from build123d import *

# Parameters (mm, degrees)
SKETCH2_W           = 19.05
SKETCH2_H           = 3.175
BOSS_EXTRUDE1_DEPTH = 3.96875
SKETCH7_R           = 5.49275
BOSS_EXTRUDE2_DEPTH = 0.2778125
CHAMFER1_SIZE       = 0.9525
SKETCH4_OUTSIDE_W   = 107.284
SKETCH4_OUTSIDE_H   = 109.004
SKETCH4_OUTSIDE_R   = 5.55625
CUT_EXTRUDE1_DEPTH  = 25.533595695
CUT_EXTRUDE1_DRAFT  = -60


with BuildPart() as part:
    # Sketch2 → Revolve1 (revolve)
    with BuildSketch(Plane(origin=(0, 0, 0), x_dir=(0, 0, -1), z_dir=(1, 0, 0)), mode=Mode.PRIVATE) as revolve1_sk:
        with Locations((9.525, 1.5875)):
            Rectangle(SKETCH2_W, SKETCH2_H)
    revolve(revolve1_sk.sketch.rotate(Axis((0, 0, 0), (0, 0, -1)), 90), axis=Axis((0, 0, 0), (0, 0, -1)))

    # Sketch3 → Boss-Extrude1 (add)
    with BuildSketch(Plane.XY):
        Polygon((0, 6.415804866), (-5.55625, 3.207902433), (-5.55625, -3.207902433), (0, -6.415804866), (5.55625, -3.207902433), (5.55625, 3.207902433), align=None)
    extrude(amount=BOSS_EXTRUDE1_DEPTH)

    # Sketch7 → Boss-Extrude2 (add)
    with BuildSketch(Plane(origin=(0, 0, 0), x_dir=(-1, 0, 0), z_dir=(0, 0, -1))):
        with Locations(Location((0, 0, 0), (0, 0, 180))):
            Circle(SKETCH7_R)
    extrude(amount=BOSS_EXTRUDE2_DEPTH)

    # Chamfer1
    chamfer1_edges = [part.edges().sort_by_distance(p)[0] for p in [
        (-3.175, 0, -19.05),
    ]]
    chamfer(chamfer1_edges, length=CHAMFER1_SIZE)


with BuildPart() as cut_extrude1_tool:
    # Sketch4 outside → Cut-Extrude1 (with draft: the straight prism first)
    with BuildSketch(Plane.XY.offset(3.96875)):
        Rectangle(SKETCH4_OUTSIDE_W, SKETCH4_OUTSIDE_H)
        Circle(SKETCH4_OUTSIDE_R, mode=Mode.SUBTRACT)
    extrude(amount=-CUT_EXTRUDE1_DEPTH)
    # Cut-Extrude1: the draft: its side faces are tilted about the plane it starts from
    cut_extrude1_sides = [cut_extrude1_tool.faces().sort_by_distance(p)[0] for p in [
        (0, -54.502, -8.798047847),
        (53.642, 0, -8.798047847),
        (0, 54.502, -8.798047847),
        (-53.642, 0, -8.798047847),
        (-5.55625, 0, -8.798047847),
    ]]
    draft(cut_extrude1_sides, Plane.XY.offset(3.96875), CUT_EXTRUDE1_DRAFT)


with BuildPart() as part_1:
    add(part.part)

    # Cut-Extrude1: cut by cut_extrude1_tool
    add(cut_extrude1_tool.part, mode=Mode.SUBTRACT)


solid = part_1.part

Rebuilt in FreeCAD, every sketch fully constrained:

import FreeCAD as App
import Part
import Sketcher
Q = App.Units.Quantity


def edges_at(feature, points):
    """Names of the edges that pass closest to the given points."""
    edges = feature.Shape.Edges
    near = lambda p: min(range(len(edges)), key=lambda i: edges[i].distToShape(Part.Vertex(*p))[0])
    return sorted({f"Edge{near(p) + 1}" for p in points})


def faces_at(feature, points):
    """Names of the faces that lie closest to the given points."""
    faces = feature.Shape.Faces
    near = lambda p: min(range(len(faces)), key=lambda i: faces[i].distToShape(Part.Vertex(*p))[0])
    return sorted({f"Face{near(p) + 1}" for p in points})

doc = App.newDocument("Part")
body = doc.addObject("PartDesign::Body", "Body")

# Sketch on YZ plane
sketch1 = body.newObject("Sketcher::SketchObject", "Sketch")
sketch1.AttachmentSupport = (doc.getObject("YZ_Plane"), [""])
sketch1.MapMode = "FlatFace"
sketch1.addGeometry(Part.LineSegment(App.Vector(3.2, 0, 0), App.Vector(0, 0, 0)), False)
sketch1.addGeometry(Part.LineSegment(App.Vector(0, 0, 0), App.Vector(0, -19.1, 0)), False)
sketch1.addGeometry(Part.LineSegment(App.Vector(0, -19.1, 0), App.Vector(3.2, -19.1, 0)), False)
sketch1.addGeometry(Part.LineSegment(App.Vector(3.2, -19.1, 0), App.Vector(3.2, 0, 0)), False)
sketch1.addConstraint(Sketcher.Constraint("Coincident", 0, 2, 1, 1))
sketch1.addConstraint(Sketcher.Constraint("Coincident", 1, 2, 2, 1))
sketch1.addConstraint(Sketcher.Constraint("Coincident", 2, 2, 3, 1))
sketch1.addConstraint(Sketcher.Constraint("Coincident", 3, 2, 0, 1))
sketch1.addConstraint(Sketcher.Constraint("Horizontal", 0))
sketch1.addConstraint(Sketcher.Constraint("Vertical", 1))
sketch1.addConstraint(Sketcher.Constraint("Horizontal", 2))
sketch1.addConstraint(Sketcher.Constraint("Vertical", 3))
sketch1.addConstraint(Sketcher.Constraint("Coincident", 0, 2, -1, 1))
sketch1.addConstraint(Sketcher.Constraint("DistanceY", 1, 2, 1, 1, Q("0.75 in")))
sketch1.addConstraint(Sketcher.Constraint("DistanceX", 0, 2, 0, 1, Q("0.125 in")))
revolution = body.newObject("PartDesign::Revolution", "Revolution")
revolution.Profile = sketch1
revolution.ReferenceAxis = (sketch1, ["V_Axis"])
revolution.Angle = 360

# Sketch on XY plane
sketch2 = body.newObject("Sketcher::SketchObject", "Sketch001")
sketch2.AttachmentSupport = (doc.getObject("XY_Plane"), [""])
sketch2.MapMode = "FlatFace"
sketch2.addGeometry(Part.LineSegment(App.Vector(0, 6, 0), App.Vector(-6, 3, 0)), False)
sketch2.addGeometry(Part.LineSegment(App.Vector(-6, 3, 0), App.Vector(-6, -3, 0)), False)
sketch2.addGeometry(Part.LineSegment(App.Vector(-6, -3, 0), App.Vector(0, -6, 0)), False)
sketch2.addGeometry(Part.LineSegment(App.Vector(0, -6, 0), App.Vector(6, -3, 0)), False)
sketch2.addGeometry(Part.LineSegment(App.Vector(6, -3, 0), App.Vector(6, 3, 0)), False)
sketch2.addGeometry(Part.LineSegment(App.Vector(6, 3, 0), App.Vector(0, 6, 0)), False)
sketch2.addConstraint(Sketcher.Constraint("Coincident", 0, 2, 1, 1))
sketch2.addConstraint(Sketcher.Constraint("Coincident", 1, 2, 2, 1))
sketch2.addConstraint(Sketcher.Constraint("Coincident", 2, 2, 3, 1))
sketch2.addConstraint(Sketcher.Constraint("Coincident", 3, 2, 4, 1))
sketch2.addConstraint(Sketcher.Constraint("Coincident", 4, 2, 5, 1))
sketch2.addConstraint(Sketcher.Constraint("Coincident", 5, 2, 0, 1))
sketch2.addConstraint(Sketcher.Constraint("Vertical", 1))
sketch2.addConstraint(Sketcher.Constraint("Vertical", 4))
sketch2.addConstraint(Sketcher.Constraint("Symmetric", 0, 2, 3, 2, -1, 1))
sketch2.addConstraint(Sketcher.Constraint("Symmetric", 2, 2, 5, 2, -1, 1))
sketch2.addConstraint(Sketcher.Constraint("PointOnObject", 2, 2, -2))
sketch2.addConstraint(Sketcher.Constraint("Parallel", 2, 5))
sketch2.addConstraint(Sketcher.Constraint("Horizontal", 1, 2, 3, 2))
sketch2.addConstraint(Sketcher.Constraint("Angle", 0, Q("-150 deg")))
sketch2.addConstraint(Sketcher.Constraint("DistanceX", 0, 2, -1, 1, Q("0.21875 in")))
sketch2.addConstraint(Sketcher.Constraint("DistanceY", 1, 2, 1, 1, Q("6.415805 mm")))
pad1 = body.newObject("PartDesign::Pad", "Pad")
pad1.Profile = sketch2
pad1.Length = Q("0.15625 in")

# Sketch on XY plane
sketch3 = body.newObject("Sketcher::SketchObject", "Sketch002")
sketch3.AttachmentSupport = (doc.getObject("XY_Plane"), [""])
sketch3.MapMode = "FlatFace"
sketch3.addGeometry(Part.Circle(App.Vector(0, 0, 0), App.Vector(0, 0, 1), 5), False)
sketch3.addConstraint(Sketcher.Constraint("Coincident", 0, 3, -1, 1))
sketch3.addConstraint(Sketcher.Constraint("Diameter", 0, Q("0.4325 in")))
pad2 = body.newObject("PartDesign::Pad", "Pad001")
pad2.Profile = sketch3
pad2.Length = 0.277813
pad2.Reversed = True
doc.recompute()

chamfer = body.newObject("PartDesign::Chamfer", "Chamfer")
chamfer.Base = (pad2, edges_at(pad2, [(-3.175, 0, -19.05)]))
chamfer.Size = Q("0.0375 in")
body2 = doc.addObject("PartDesign::Body", "Body001")

# Sketch on XY plane
sketch4 = body2.newObject("Sketcher::SketchObject", "Sketch003")
sketch4.AttachmentSupport = (doc.getObject("XY_Plane001"), [""])
sketch4.MapMode = "FlatFace"
sketch4.AttachmentOffset = App.Placement(App.Vector(0, 0, 0.15625 * 25.4), App.Rotation())
sketch4.addGeometry(Part.LineSegment(App.Vector(-54, 55, 0), App.Vector(-54, -55, 0)), False)
sketch4.addGeometry(Part.LineSegment(App.Vector(-54, -55, 0), App.Vector(54, -55, 0)), False)
sketch4.addGeometry(Part.LineSegment(App.Vector(54, -55, 0), App.Vector(54, 55, 0)), False)
sketch4.addGeometry(Part.LineSegment(App.Vector(54, 55, 0), App.Vector(-54, 55, 0)), False)
sketch4.addGeometry(Part.Circle(App.Vector(0, 0, 0), App.Vector(0, 0, 1), 6), False)
sketch4.addConstraint(Sketcher.Constraint("Coincident", 0, 2, 1, 1))
sketch4.addConstraint(Sketcher.Constraint("Coincident", 1, 2, 2, 1))
sketch4.addConstraint(Sketcher.Constraint("Coincident", 2, 2, 3, 1))
sketch4.addConstraint(Sketcher.Constraint("Coincident", 3, 2, 0, 1))
sketch4.addConstraint(Sketcher.Constraint("Vertical", 0))
sketch4.addConstraint(Sketcher.Constraint("Horizontal", 1))
sketch4.addConstraint(Sketcher.Constraint("Vertical", 2))
sketch4.addConstraint(Sketcher.Constraint("Horizontal", 3))
sketch4.addConstraint(Sketcher.Constraint("Coincident", 4, 3, -1, 1))
sketch4.addConstraint(Sketcher.Constraint("Symmetric", 0, 2, 2, 2, -1, 1))
sketch4.addConstraint(Sketcher.Constraint("Diameter", 4, Q("0.4375 in")))
sketch4.addConstraint(Sketcher.Constraint("DistanceX", 1, 1, 1, 2, Q("107.284 mm")))
sketch4.addConstraint(Sketcher.Constraint("DistanceY", 0, 2, 0, 1, Q("109.004 mm")))
pad3 = body2.newObject("PartDesign::Pad", "Pad002")
pad3.Profile = sketch4
pad3.Length = 25.533596
pad3.Reversed = True
doc.recompute()

datumplane = body2.newObject("PartDesign::Plane", "DatumPlane")
datumplane.AttachmentSupport = (doc.getObject("XY_Plane001"), [""])
datumplane.MapMode = "FlatFace"
datumplane.AttachmentOffset = App.Placement(App.Vector(0, 0, 0.15625 * 25.4), App.Rotation())
draft = body2.newObject("PartDesign::Draft", "Draft")
draft.Base = (pad3, faces_at(pad3, [
    (0, -54.502, -8.798),
    (53.642, 0, -8.798),
    (0, 54.502, -8.798),
    (-53.642, 0, -8.798),
    (-5.556, 0, -8.798),
]))
draft.NeutralPlane = (datumplane, [""])
draft.Angle = 60
draft.Reversed = True
doc.recompute()

boolean = body.newObject("PartDesign::Boolean", "Boolean")
boolean.Type = "Cut"
boolean.addObjects([body2])

doc.recompute()
